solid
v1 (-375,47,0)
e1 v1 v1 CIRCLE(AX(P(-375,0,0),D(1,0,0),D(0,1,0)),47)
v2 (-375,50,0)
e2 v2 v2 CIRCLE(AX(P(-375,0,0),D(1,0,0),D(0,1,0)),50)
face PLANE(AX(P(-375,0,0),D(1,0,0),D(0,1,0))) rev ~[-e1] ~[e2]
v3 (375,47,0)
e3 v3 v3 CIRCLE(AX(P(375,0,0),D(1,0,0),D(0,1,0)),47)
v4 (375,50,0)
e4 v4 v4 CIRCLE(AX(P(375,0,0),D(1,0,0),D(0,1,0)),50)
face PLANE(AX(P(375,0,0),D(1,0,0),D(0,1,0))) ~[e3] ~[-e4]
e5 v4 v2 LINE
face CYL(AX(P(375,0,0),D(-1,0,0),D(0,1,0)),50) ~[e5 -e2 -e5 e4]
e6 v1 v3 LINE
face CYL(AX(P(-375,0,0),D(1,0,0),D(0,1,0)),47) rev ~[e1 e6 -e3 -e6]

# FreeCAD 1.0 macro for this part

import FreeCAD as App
import Part
import Sketcher
Q = App.Units.Quantity

doc = App.newDocument("Part")
body = doc.addObject("PartDesign::Body", "Body")

# Sketch on XY plane
sketch1 = body.newObject("Sketcher::SketchObject", "Sketch")
sketch1.AttachmentSupport = (doc.getObject("XY_Plane"), [""])
sketch1.MapMode = "FlatFace"
sketch1.addGeometry([
    Part.LineSegment(App.Vector(-375, 50, 0), App.Vector(-375, 47, 0)),
    Part.LineSegment(App.Vector(-375, 47, 0), App.Vector(375, 47, 0)),
    Part.LineSegment(App.Vector(375, 47, 0), App.Vector(375, 50, 0)),
    Part.LineSegment(App.Vector(375, 50, 0), App.Vector(-375, 50, 0)),
], False)
sketch1.addConstraint([
    Sketcher.Constraint("Coincident", 0, 2, 1, 1),
    Sketcher.Constraint("Coincident", 1, 2, 2, 1),
    Sketcher.Constraint("Coincident", 2, 2, 3, 1),
    Sketcher.Constraint("Coincident", 3, 2, 0, 1),
    Sketcher.Constraint("Vertical", 0),
    Sketcher.Constraint("Horizontal", 1),
    Sketcher.Constraint("Vertical", 2),
    Sketcher.Constraint("Horizontal", 3),
    Sketcher.Constraint("DistanceX", 1, 1, 1, 2, Q("750 mm")),
    Sketcher.Constraint("DistanceY", 0, 2, 0, 1, Q("3 mm")),
    Sketcher.Constraint("DistanceY", -1, 1, 2, 2, Q("50 mm")),
    Sketcher.Constraint("DistanceX", 0, 2, -1, 1, Q("375 mm")),
])
revolution = body.newObject("PartDesign::Revolution", "Revolution")
revolution.Profile = sketch1
revolution.ReferenceAxis = (sketch1, ["H_Axis"])
revolution.Angle = 360

doc.recompute()
